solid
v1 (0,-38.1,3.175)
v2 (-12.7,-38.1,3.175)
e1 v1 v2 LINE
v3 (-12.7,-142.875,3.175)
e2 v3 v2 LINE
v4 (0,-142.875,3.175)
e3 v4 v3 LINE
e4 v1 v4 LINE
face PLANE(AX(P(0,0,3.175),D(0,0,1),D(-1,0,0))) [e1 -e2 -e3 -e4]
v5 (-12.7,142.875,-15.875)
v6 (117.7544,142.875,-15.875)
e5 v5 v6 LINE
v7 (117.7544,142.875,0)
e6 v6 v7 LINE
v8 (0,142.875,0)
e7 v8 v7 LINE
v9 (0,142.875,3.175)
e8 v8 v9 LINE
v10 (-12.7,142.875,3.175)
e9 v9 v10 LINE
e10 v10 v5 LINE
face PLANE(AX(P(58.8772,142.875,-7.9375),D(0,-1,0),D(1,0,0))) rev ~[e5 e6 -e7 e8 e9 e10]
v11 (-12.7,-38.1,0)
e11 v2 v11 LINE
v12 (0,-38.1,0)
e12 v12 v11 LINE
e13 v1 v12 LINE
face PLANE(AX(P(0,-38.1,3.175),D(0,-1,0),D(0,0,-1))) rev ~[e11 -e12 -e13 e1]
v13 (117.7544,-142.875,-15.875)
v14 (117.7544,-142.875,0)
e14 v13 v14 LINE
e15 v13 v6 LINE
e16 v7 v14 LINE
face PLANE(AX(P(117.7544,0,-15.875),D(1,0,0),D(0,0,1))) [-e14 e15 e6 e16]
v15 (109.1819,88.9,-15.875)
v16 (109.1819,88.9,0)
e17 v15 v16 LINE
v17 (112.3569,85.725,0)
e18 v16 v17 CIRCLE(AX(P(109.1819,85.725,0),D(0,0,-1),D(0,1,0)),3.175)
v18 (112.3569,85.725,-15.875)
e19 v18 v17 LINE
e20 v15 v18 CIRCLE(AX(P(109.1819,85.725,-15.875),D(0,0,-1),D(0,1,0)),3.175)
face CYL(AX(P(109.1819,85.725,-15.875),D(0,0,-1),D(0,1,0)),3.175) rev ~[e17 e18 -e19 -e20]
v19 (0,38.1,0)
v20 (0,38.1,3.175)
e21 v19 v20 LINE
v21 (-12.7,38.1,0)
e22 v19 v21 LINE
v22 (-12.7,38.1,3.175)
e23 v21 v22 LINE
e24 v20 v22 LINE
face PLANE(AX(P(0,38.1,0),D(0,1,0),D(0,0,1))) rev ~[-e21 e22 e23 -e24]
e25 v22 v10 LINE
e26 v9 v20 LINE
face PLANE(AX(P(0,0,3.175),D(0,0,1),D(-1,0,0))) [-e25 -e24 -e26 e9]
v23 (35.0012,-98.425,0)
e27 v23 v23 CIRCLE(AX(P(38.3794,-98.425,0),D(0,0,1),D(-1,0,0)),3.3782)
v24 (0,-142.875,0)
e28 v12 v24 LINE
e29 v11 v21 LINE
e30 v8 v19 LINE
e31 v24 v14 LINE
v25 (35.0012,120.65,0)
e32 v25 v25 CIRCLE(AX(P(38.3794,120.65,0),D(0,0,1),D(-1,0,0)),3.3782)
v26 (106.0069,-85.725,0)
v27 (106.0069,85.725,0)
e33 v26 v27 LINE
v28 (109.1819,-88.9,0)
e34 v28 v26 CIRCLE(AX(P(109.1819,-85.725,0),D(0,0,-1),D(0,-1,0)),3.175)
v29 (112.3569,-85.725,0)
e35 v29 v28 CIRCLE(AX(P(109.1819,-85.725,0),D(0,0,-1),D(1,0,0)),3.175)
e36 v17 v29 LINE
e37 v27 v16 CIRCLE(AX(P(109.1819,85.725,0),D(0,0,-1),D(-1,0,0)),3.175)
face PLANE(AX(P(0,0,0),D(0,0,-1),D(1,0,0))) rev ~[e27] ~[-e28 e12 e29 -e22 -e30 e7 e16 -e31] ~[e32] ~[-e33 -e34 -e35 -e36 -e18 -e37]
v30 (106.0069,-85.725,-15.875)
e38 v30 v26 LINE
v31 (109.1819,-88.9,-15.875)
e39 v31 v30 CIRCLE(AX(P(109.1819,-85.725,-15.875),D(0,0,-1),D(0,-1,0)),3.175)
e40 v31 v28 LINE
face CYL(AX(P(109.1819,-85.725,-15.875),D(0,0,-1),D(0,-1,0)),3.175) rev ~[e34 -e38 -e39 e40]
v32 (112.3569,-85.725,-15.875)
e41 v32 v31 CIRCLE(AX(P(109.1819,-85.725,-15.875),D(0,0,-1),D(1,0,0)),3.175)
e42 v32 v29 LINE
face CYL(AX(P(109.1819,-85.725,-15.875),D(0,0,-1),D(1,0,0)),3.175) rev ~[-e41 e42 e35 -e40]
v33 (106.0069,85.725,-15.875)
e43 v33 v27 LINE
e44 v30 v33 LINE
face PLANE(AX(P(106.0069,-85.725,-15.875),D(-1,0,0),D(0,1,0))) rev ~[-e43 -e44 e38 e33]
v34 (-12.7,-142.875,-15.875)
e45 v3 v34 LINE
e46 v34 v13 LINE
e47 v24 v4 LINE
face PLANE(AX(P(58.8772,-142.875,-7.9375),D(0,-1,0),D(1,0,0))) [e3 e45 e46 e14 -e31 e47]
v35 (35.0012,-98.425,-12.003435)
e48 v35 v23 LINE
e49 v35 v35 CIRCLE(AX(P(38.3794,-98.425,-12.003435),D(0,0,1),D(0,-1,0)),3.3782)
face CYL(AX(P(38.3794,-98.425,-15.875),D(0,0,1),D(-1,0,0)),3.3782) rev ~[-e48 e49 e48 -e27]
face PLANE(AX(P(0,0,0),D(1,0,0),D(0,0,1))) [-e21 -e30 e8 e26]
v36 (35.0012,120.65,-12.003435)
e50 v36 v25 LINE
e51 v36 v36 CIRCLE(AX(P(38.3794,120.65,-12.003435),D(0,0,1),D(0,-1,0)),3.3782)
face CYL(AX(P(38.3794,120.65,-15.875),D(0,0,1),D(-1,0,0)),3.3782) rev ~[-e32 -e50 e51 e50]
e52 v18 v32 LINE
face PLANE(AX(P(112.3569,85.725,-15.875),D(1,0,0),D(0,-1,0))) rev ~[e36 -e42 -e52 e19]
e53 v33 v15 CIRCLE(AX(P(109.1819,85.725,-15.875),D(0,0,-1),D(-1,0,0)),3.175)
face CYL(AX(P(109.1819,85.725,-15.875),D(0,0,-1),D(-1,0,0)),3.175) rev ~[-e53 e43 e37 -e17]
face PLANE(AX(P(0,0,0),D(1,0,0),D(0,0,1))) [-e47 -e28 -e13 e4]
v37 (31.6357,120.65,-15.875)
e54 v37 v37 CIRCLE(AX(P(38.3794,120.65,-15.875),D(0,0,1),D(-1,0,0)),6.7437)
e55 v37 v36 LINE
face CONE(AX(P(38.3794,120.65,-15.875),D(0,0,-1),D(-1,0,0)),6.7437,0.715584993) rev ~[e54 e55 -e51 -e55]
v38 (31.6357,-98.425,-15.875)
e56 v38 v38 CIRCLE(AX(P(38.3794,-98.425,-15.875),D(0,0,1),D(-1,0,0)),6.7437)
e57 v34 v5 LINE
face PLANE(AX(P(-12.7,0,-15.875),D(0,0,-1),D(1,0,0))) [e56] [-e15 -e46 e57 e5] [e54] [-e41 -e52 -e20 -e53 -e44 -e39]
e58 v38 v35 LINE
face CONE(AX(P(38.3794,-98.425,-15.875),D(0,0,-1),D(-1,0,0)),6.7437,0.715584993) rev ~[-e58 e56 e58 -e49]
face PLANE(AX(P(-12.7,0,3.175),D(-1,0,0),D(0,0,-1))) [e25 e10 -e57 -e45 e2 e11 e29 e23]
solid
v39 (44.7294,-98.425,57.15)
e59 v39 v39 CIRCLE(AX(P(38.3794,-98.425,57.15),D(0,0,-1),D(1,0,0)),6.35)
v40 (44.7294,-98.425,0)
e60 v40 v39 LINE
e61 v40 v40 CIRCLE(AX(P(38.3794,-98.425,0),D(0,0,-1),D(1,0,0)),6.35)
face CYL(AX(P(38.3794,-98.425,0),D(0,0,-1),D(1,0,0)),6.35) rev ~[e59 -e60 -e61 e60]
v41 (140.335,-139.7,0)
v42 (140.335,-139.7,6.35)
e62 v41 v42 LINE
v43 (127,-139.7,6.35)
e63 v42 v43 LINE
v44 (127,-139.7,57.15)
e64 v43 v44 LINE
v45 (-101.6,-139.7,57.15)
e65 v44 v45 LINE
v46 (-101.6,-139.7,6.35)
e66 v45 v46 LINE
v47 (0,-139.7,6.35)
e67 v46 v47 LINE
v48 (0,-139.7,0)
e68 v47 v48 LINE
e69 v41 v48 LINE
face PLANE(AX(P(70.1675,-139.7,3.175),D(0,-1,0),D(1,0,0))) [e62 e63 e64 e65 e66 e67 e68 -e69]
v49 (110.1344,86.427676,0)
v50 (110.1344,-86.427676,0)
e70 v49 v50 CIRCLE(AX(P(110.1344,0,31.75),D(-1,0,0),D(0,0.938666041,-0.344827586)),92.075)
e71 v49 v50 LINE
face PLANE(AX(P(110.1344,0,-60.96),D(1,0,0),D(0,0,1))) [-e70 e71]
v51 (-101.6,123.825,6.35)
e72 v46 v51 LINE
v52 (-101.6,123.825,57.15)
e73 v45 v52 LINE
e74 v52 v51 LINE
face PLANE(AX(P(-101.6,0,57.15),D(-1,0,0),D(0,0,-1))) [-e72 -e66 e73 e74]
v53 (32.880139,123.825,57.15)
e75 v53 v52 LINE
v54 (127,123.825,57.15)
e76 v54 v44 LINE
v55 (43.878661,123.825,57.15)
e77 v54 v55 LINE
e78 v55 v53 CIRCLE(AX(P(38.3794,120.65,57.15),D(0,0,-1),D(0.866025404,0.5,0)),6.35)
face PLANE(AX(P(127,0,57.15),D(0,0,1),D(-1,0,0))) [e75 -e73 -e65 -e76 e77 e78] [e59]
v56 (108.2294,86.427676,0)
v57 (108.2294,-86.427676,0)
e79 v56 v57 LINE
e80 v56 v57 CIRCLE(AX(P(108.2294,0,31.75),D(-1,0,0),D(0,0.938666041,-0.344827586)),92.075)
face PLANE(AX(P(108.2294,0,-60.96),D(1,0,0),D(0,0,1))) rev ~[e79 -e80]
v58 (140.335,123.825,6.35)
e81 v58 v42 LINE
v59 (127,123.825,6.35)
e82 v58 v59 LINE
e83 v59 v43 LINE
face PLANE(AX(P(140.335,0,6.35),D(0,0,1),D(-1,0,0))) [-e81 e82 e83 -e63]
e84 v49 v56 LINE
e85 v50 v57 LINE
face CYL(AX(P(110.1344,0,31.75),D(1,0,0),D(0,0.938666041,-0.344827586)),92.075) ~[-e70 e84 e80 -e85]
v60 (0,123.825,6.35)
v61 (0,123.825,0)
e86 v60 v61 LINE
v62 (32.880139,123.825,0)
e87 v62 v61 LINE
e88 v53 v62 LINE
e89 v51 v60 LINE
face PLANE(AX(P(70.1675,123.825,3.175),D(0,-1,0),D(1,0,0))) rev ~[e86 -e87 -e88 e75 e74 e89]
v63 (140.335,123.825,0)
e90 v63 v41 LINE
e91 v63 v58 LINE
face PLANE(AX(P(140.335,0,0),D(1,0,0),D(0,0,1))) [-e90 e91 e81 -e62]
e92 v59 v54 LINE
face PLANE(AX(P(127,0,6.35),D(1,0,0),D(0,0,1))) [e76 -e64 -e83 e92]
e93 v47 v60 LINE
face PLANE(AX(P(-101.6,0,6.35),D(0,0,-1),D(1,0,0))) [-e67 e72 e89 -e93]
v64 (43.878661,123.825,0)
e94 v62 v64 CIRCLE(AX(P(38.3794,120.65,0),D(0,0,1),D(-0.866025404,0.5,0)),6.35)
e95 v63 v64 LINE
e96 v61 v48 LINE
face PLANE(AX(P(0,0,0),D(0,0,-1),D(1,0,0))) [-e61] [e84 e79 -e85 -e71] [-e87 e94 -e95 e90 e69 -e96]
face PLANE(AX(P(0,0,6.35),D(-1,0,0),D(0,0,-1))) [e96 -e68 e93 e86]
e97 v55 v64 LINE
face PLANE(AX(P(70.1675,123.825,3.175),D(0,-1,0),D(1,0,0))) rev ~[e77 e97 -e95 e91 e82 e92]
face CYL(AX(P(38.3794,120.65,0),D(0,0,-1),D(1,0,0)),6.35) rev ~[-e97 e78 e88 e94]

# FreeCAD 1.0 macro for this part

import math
import FreeCAD as App
import Part
import Sketcher

V = App.Vector
Q = App.Units.Quantity


def add_polygon(sketch, points):
    """Adds a closed chain of lines whose ends are joined by coincident constraints."""
    first, n = sketch.GeometryCount, len(points)
    for a, b in zip(points, points[1:] + points[:1]):
        sketch.addGeometry(Part.LineSegment(App.Vector(*a, 0), App.Vector(*b, 0)), False)
    for i in range(n):
        sketch.addConstraint(Sketcher.Constraint("Coincident", first + i, 2, first + (i + 1) % n, 1))

doc = App.newDocument("Part")
body = doc.addObject("PartDesign::Body", "Body")

sketch1 = body.newObject("Sketcher::SketchObject", "Sketch")
sketch1.AttachmentSupport = (doc.getObject("XZ_Plane"), [""])
sketch1.MapMode = "FlatFace"
add_polygon(sketch1, [(0, 6.3), (0, 0), (108.2, 0), (108.2, -61), (110.1, -61), (110.1, 0), (140.3, 0), (140.3, 6.3), (127, 6.3), (127, 57.1), (-101.6, 57.1), (-101.6, 6.3)])
sketch1.addConstraint([
    Sketcher.Constraint("Vertical", 0),
    Sketcher.Constraint("Horizontal", 1),
    Sketcher.Constraint("Vertical", 2),
    Sketcher.Constraint("Horizontal", 3),
    Sketcher.Constraint("Vertical", 4),
    Sketcher.Constraint("Horizontal", 5),
    Sketcher.Constraint("Vertical", 6),
    Sketcher.Constraint("Horizontal", 7),
    Sketcher.Constraint("Vertical", 8),
    Sketcher.Constraint("Horizontal", 9),
    Sketcher.Constraint("Vertical", 10),
    Sketcher.Constraint("Horizontal", 11),
    Sketcher.Constraint("Coincident", 0, 2, -1, 1),
    Sketcher.Constraint("PointOnObject", 4, 2, -1),
    Sketcher.Constraint("Horizontal", 7, 2, 10, 2),
    Sketcher.Constraint("DistanceX", 9, 2, 9, 1, Q("9 in")),
    Sketcher.Constraint("DistanceX", 11, 1, 11, 2, Q("4 in")),
    Sketcher.Constraint("DistanceY", 8, 1, 8, 2, Q("2 in")),
    Sketcher.Constraint("DistanceY", 2, 2, 2, 1, Q("2.4 in")),
    Sketcher.Constraint("DistanceY", 0, 2, 0, 1, Q("0.25 in")),
    Sketcher.Constraint("DistanceX", 1, 1, 1, 2, Q("4.261 in")),
    Sketcher.Constraint("DistanceX", 3, 1, 3, 2, Q("0.075 in")),
    Sketcher.Constraint("DistanceX", 5, 1, 5, 2, Q("1.189 in")),
])
pad1 = body.newObject("PartDesign::Pad", "Pad")
pad1.Profile = sketch1
pad1.Type = "TwoLengths"
pad1.Length = Q("5.5 in")
pad1.Length2 = Q("4.875 in")

sketch2 = body.newObject("Sketcher::SketchObject", "Sketch001")
sketch2.AttachmentSupport = (doc.getObject("YZ_Plane"), [""])
sketch2.MapMode = "FlatFace"
sketch2.AttachmentOffset = App.Placement(V(0, 0, 4.336 * 25.4), App.Rotation())
sketch2.addGeometry([
    Part.LineSegment(V(-86, 0, 0), V(-140, 0, 0)),
    Part.LineSegment(V(-140, 0, 0), V(-140, -89, 0)),
    Part.LineSegment(V(-140, -89, 0), V(152, -89, 0)),
    Part.LineSegment(V(152, -89, 0), V(152, 0, 0)),
    Part.LineSegment(V(152, 0, 0), V(86, 0, 0)),
    Part.ArcOfCircle(Part.Circle(V(0, 32, 0), V(0, 0, 1), 92), math.radians(-160), math.radians(-20)),
], False)
sketch2.addConstraint([
    Sketcher.Constraint("Coincident", 0, 2, 1, 1),
    Sketcher.Constraint("Coincident", 1, 2, 2, 1),
    Sketcher.Constraint("Coincident", 2, 2, 3, 1),
    Sketcher.Constraint("Coincident", 3, 2, 4, 1),
    Sketcher.Constraint("Coincident", 4, 2, 5, 2),
    Sketcher.Constraint("Coincident", 5, 1, 0, 1),
    Sketcher.Constraint("Horizontal", 0),
    Sketcher.Constraint("Vertical", 1),
    Sketcher.Constraint("Horizontal", 2),
    Sketcher.Constraint("Vertical", 3),
    Sketcher.Constraint("Horizontal", 4),
    Sketcher.Constraint("Symmetric", 4, 2, 5, 1, -1, 1),
    Sketcher.Constraint("PointOnObject", 5, 3, -2),
    Sketcher.Constraint("DistanceX", 2, 1, 2, 2, Q("11.5 in")),
    Sketcher.Constraint("DistanceY", 1, 2, 1, 1, Q("3.5 in")),
    Sketcher.Constraint("DistanceX", -1, 1, 2, 2, Q("6 in")),
    Sketcher.Constraint("Radius", 5, Q("3.625 in")),
    Sketcher.Constraint("DistanceY", -1, 1, 5, 3, Q("1.25 in")),
])
pocket1 = body.newObject("PartDesign::Pocket", "Pocket")
pocket1.Profile = sketch2
pocket1.Type = "ThroughAll"

sketch3 = body.newObject("Sketcher::SketchObject", "Sketch002")
sketch3.AttachmentSupport = (doc.getObject("XY_Plane"), [""])
sketch3.MapMode = "FlatFace"
sketch3.addGeometry([
    Part.Circle(V(38, 121, 0), V(0, 0, 1), 6),
    Part.Circle(V(38, -98, 0), V(0, 0, 1), 6),
], False)
sketch3.addConstraint([
    Sketcher.Constraint("Equal", 0, 1),
    Sketcher.Constraint("Vertical", 0, 3, 1, 3),
    Sketcher.Constraint("Diameter", 0, Q("0.5 in")),
    Sketcher.Constraint("DistanceY", -1, 1, 0, 3, Q("4.75 in")),
    Sketcher.Constraint("DistanceX", -1, 1, 0, 3, Q("1.511 in")),
    Sketcher.Constraint("DistanceY", 1, 3, -1, 1, Q("3.875 in")),
])
pocket2 = body.newObject("PartDesign::Pocket", "Pocket001")
pocket2.Profile = sketch3
pocket2.Type = "ThroughAll"
pocket2.Reversed = True
body2 = doc.addObject("PartDesign::Body", "Body001")

sketch4 = body2.newObject("Sketcher::SketchObject", "Sketch003")
sketch4.AttachmentSupport = (doc.getObject("XZ_Plane001"), [""])
sketch4.MapMode = "FlatFace"
add_polygon(sketch4, [(117.8, -15.9), (117.8, 0), (0, 0), (0, 3.2), (-12.7, 3.2), (-12.7, -15.9)])
sketch4.addConstraint([
    Sketcher.Constraint("Vertical", 0),
    Sketcher.Constraint("Horizontal", 1),
    Sketcher.Constraint("Vertical", 2),
    Sketcher.Constraint("Horizontal", 3),
    Sketcher.Constraint("Vertical", 4),
    Sketcher.Constraint("Horizontal", 5),
    Sketcher.Constraint("Coincident", 1, 2, -1, 1),
    Sketcher.Constraint("DistanceX", 3, 2, 3, 1, Q("0.5 in")),
    Sketcher.Constraint("DistanceY", 4, 2, 4, 1, Q("0.75 in")),
    Sketcher.Constraint("DistanceX", 1, 2, 1, 1, Q("4.636 in")),
    Sketcher.Constraint("DistanceY", 0, 1, 0, 2, Q("0.625 in")),
])
pad2 = body2.newObject("PartDesign::Pad", "Pad001")
pad2.Profile = sketch4
pad2.Type = "TwoLengths"
pad2.Length = Q("5.625 in")
pad2.Length2 = Q("5.625 in")

sketch5 = body2.newObject("Sketcher::SketchObject", "Sketch004")
sketch5.AttachmentSupport = (doc.getObject("XY_Plane001"), [""])
sketch5.MapMode = "FlatFace"
sketch5.AttachmentOffset = App.Placement(V(0, 0, -0.625 * 25.4), App.Rotation())
sketch5.addGeometry([
    Part.Circle(V(38.4, 120.7, 0), V(0, 0, 1), 3.4),
    Part.Circle(V(38.4, -98.4, 0), V(0, 0, 1), 3.4),
], False)
sketch5.addConstraint([
    Sketcher.Constraint("Equal", 0, 1),
    Sketcher.Constraint("Vertical", 0, 3, 1, 3),
    Sketcher.Constraint("Diameter", 0, Q("0.266 in")),
    Sketcher.Constraint("DistanceY", -1, 1, 0, 3, Q("4.75 in")),
    Sketcher.Constraint("DistanceX", -1, 1, 0, 3, Q("1.511 in")),
    Sketcher.Constraint("DistanceY", 1, 3, -1, 1, Q("3.875 in")),
])
doc.recompute()
hole = body2.newObject("PartDesign::Hole", "Hole")
hole.Profile = sketch5
hole.ThreadType = "None"
hole.Diameter = Q("0.266 in")
hole.DepthType = "ThroughAll"
hole.HoleCutType = "Countersink"
hole.HoleCutDiameter = Q("0.531 in")
hole.HoleCutCountersinkAngle = 82
hole.Reversed = True

sketch6 = body2.newObject("Sketcher::SketchObject", "Sketch005")
sketch6.AttachmentSupport = (doc.getObject("XY_Plane001"), [""])
sketch6.MapMode = "FlatFace"
sketch6.AttachmentOffset = App.Placement(V(0, 0, -0.625 * 25.4), App.Rotation())
sketch6.addGeometry([
    Part.LineSegment(V(112.4, 85.7, 0), V(112.4, -85.7, 0)),
    Part.ArcOfCircle(Part.Circle(V(109.2, -85.7, 0), V(0, 0, 1), 3.2), math.radians(-90), math.radians(0)),
    Part.ArcOfCircle(Part.Circle(V(109.2, -85.7, 0), V(0, 0, 1), 3.2), math.radians(180), math.radians(270)),
    Part.LineSegment(V(106, -85.7, 0), V(106, 85.7, 0)),
    Part.ArcOfCircle(Part.Circle(V(109.2, 85.7, 0), V(0, 0, 1), 3.2), math.radians(90), math.radians(180)),
    Part.ArcOfCircle(Part.Circle(V(109.2, 85.7, 0), V(0, 0, 1), 3.2), math.radians(0), math.radians(90)),
], False)
sketch6.addConstraint([
    Sketcher.Constraint("Tangent", 0, 2, 1, 2),
    Sketcher.Constraint("Tangent", 1, 1, 2, 2),
    Sketcher.Constraint("Tangent", 2, 1, 3, 1),
    Sketcher.Constraint("Tangent", 3, 2, 4, 2),
    Sketcher.Constraint("Tangent", 4, 1, 5, 2),
    Sketcher.Constraint("Tangent", 5, 1, 0, 1),
    Sketcher.Constraint("Vertical", 0),
    Sketcher.Constraint("Vertical", 3),
    Sketcher.Constraint("Equal", 1, 2),
    Sketcher.Constraint("Equal", 2, 4),
    Sketcher.Constraint("Symmetric", 1, 1, 4, 1, -1),
    Sketcher.Constraint("Vertical", 5, 3, 1, 1),
    Sketcher.Constraint("Radius", 1, Q("0.125 in")),
    Sketcher.Constraint("DistanceY", 0, 2, 0, 1, Q("6.75 in")),
    Sketcher.Constraint("DistanceX", -1, 1, 1, 3, Q("4.2985 in")),
])
pocket3 = body2.newObject("PartDesign::Pocket", "Pocket002")
pocket3.Profile = sketch6
pocket3.Type = "ThroughAll"
pocket3.Reversed = True

sketch7 = body2.newObject("Sketcher::SketchObject", "Sketch006")
sketch7.AttachmentSupport = (doc.getObject("YZ_Plane001"), [""])
sketch7.MapMode = "FlatFace"
add_polygon(sketch7, [(-38.1, 0), (38.1, 0), (38.1, 3.2), (-38.1, 3.2)])
sketch7.addConstraint([
    Sketcher.Constraint("Horizontal", 0),
    Sketcher.Constraint("Vertical", 1),
    Sketcher.Constraint("Horizontal", 2),
    Sketcher.Constraint("Vertical", 3),
    Sketcher.Constraint("Symmetric", 0, 2, 3, 2, -1, 1),
    Sketcher.Constraint("DistanceX", 0, 1, 0, 2, Q("3 in")),
    Sketcher.Constraint("DistanceY", 1, 1, 1, 2, Q("0.125 in")),
])
pocket4 = body2.newObject("PartDesign::Pocket", "Pocket003")
pocket4.Profile = sketch7
pocket4.Type = "ThroughAll"

doc.recompute()
